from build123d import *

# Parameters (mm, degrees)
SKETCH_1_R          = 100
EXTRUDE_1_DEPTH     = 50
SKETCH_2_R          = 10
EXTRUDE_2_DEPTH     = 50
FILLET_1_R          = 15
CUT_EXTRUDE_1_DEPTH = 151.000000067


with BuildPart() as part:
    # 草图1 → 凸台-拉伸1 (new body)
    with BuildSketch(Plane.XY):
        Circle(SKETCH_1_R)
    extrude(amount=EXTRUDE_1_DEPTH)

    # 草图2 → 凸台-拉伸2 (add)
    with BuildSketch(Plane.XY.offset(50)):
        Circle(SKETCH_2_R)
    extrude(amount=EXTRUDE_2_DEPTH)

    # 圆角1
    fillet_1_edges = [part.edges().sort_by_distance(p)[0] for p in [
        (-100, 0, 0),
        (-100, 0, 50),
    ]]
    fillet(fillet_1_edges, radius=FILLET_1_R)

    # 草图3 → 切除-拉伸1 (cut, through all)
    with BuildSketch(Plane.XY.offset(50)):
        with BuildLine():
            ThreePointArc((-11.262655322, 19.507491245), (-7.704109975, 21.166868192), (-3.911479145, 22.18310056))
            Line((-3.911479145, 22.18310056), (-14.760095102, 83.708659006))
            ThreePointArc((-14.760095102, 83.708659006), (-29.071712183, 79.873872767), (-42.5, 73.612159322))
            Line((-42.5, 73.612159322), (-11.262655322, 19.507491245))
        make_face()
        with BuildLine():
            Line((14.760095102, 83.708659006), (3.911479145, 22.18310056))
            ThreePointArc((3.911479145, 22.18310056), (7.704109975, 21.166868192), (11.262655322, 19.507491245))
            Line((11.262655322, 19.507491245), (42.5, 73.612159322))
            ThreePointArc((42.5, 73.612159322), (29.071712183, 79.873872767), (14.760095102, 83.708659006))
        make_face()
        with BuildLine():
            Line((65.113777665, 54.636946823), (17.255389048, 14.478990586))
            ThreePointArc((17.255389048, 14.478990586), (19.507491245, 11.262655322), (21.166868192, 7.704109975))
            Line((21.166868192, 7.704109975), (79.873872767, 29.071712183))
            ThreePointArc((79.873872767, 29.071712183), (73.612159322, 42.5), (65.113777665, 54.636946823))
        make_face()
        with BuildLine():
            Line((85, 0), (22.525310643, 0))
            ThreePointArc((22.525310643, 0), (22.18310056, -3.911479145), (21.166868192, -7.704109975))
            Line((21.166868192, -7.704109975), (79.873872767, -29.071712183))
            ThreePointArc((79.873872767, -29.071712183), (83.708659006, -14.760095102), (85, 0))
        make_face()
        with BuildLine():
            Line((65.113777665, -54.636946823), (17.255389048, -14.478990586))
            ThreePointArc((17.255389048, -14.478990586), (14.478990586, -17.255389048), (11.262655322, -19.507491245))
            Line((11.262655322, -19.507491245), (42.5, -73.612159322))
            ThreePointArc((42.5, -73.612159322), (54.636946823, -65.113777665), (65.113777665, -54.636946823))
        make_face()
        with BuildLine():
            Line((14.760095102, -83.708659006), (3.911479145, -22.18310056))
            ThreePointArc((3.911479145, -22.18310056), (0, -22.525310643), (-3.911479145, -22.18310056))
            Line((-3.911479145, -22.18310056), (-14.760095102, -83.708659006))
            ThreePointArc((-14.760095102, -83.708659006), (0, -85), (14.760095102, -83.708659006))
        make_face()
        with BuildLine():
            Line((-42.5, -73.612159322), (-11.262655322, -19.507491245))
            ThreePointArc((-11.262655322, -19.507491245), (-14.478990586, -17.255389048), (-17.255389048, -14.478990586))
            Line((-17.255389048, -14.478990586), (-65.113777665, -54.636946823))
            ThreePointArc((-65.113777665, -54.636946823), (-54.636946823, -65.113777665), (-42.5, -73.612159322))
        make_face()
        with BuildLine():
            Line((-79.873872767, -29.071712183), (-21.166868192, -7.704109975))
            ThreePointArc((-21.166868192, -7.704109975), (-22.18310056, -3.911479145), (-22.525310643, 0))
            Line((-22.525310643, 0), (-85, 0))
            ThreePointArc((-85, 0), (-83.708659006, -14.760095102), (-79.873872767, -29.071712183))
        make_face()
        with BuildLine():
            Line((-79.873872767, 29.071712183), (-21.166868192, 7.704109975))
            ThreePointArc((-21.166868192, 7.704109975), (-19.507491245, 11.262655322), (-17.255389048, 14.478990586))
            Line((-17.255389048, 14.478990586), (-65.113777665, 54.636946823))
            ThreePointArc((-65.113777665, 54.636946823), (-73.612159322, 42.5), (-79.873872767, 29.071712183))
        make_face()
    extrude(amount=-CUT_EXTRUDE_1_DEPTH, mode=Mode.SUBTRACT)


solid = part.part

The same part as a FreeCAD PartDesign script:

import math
import FreeCAD as App
import Part
import Sketcher
from FreeCAD import Vector
Q = App.Units.Quantity


def edges_at(feature, points):
    """Names of the edges that pass closest to the given points."""
    edges = feature.Shape.Edges
    near = lambda p: min(range(len(edges)), key=lambda i: edges[i].distToShape(Part.Vertex(*p))[0])
    return sorted({f"Edge{near(p) + 1}" for p in points})

doc = App.newDocument("Part")
body = doc.addObject("PartDesign::Body", "Body")

# Sketch on XY plane
sketch1 = doc.addObject("Sketcher::SketchObject", "Sketch")
body.addObject(sketch1)
sketch1.AttachmentSupport = (doc.XY_Plane, [""])
sketch1.MapMode = "FlatFace"
sketch1.addGeometry(Part.Circle(Vector(0, 0, 0), Vector(0, 0, 1), 100), False)
sketch1.addConstraint(Sketcher.Constraint("Coincident", 0, 3, -1, 1))
sketch1.addConstraint(Sketcher.Constraint("Diameter", 0, 200.0))
pad1 = doc.addObject("PartDesign::Pad", "Pad")
body.addObject(pad1)
pad1.Profile = sketch1
pad1.Length = 50

# Sketch on XY plane
sketch2 = doc.addObject("Sketcher::SketchObject", "Sketch001")
body.addObject(sketch2)
sketch2.AttachmentSupport = (doc.XY_Plane, [""])
sketch2.MapMode = "FlatFace"
sketch2.AttachmentOffset = App.Placement(Vector(0, 0, 50), App.Rotation())
sketch2.addGeometry(Part.Circle(Vector(0, 0, 0), Vector(0, 0, 1), 10), False)
sketch2.addConstraint(Sketcher.Constraint("Coincident", 0, 3, -1, 1))
sketch2.addConstraint(Sketcher.Constraint("Diameter", 0, 20.0))
pad2 = doc.addObject("PartDesign::Pad", "Pad001")
body.addObject(pad2)
pad2.Profile = sketch2
pad2.Length = 50
doc.recompute()

fillet = doc.addObject("PartDesign::Fillet", "Fillet")
body.addObject(fillet)
fillet.Base = (pad2, edges_at(pad2, [(-100, 0, 0), (-100, 0, 50)]))
fillet.Radius = 15

# Sketch on XY plane
sketch3 = doc.addObject("Sketcher::SketchObject", "Sketch002")
body.addObject(sketch3)
sketch3.AttachmentSupport = (doc.XY_Plane, [""])
sketch3.MapMode = "FlatFace"
sketch3.AttachmentOffset = App.Placement(Vector(0, 0, 50), App.Rotation())
sketch3.addGeometry(Part.ArcOfCircle(Part.Circle(Vector(0, 0, 0), Vector(0, 0, 1), 23), math.radians(100), math.radians(120)), False)
sketch3.addGeometry(Part.LineSegment(Vector(-4, 22, 0), Vector(-15, 84, 0)), False)
sketch3.addGeometry(Part.ArcOfCircle(Part.Circle(Vector(0, 0, 0), Vector(0, 0, 1), 85), math.radians(100), math.radians(120)), False)
sketch3.addGeometry(Part.LineSegment(Vector(-42, 74, 0), Vector(-11, 20, 0)), False)
sketch3.addGeometry(Part.LineSegment(Vector(15, 84, 0), Vector(4, 22, 0)), False)
sketch3.addGeometry(Part.ArcOfCircle(Part.Circle(Vector(0, 0, 0), Vector(0, 0, 1), 23), math.radians(60), math.radians(80)), False)
sketch3.addGeometry(Part.LineSegment(Vector(11, 20, 0), Vector(42, 74, 0)), False)
sketch3.addGeometry(Part.ArcOfCircle(Part.Circle(Vector(0, 0, 0), Vector(0, 0, 1), 85), math.radians(60), math.radians(80)), False)
sketch3.addGeometry(Part.LineSegment(Vector(65, 55, 0), Vector(17, 14, 0)), False)
sketch3.addGeometry(Part.ArcOfCircle(Part.Circle(Vector(0, 0, 0), Vector(0, 0, 1), 23), math.radians(20), math.radians(40)), False)
sketch3.addGeometry(Part.LineSegment(Vector(21, 8, 0), Vector(80, 29, 0)), False)
sketch3.addGeometry(Part.ArcOfCircle(Part.Circle(Vector(0, 0, 0), Vector(0, 0, 1), 85), math.radians(20), math.radians(40)), False)
sketch3.addGeometry(Part.LineSegment(Vector(85, 0, 0), Vector(23, 0, 0)), False)
sketch3.addGeometry(Part.ArcOfCircle(Part.Circle(Vector(0, 0, 0), Vector(0, 0, 1), 23), math.radians(-20), math.radians(0)), False)
sketch3.addGeometry(Part.LineSegment(Vector(21, -8, 0), Vector(80, -29, 0)), False)
sketch3.addGeometry(Part.ArcOfCircle(Part.Circle(Vector(0, 0, 0), Vector(0, 0, 1), 85), math.radians(-20), math.radians(0)), False)
sketch3.addGeometry(Part.LineSegment(Vector(65, -55, 0), Vector(17, -14, 0)), False)
sketch3.addGeometry(Part.ArcOfCircle(Part.Circle(Vector(0, 0, 0), Vector(0, 0, 1), 23), math.radians(-60), math.radians(-40)), False)
sketch3.addGeometry(Part.LineSegment(Vector(11, -20, 0), Vector(42, -74, 0)), False)
sketch3.addGeometry(Part.ArcOfCircle(Part.Circle(Vector(0, 0, 0), Vector(0, 0, 1), 85), math.radians(-60), math.radians(-40)), False)
sketch3.addGeometry(Part.LineSegment(Vector(15, -84, 0), Vector(4, -22, 0)), False)
sketch3.addGeometry(Part.ArcOfCircle(Part.Circle(Vector(0, 0, 0), Vector(0, 0, 1), 23), math.radians(-100), math.radians(-80)), False)
sketch3.addGeometry(Part.LineSegment(Vector(-4, -22, 0), Vector(-15, -84, 0)), False)
sketch3.addGeometry(Part.ArcOfCircle(Part.Circle(Vector(0, 0, 0), Vector(0, 0, 1), 85), math.radians(-100), math.radians(-80)), False)
sketch3.addGeometry(Part.LineSegment(Vector(-42, -74, 0), Vector(-11, -20, 0)), False)
sketch3.addGeometry(Part.ArcOfCircle(Part.Circle(Vector(0, 0, 0), Vector(0, 0, 1), 23), math.radians(-140), math.radians(-120)), False)
sketch3.addGeometry(Part.LineSegment(Vector(-17, -14, 0), Vector(-65, -55, 0)), False)
sketch3.addGeometry(Part.ArcOfCircle(Part.Circle(Vector(0, 0, 0), Vector(0, 0, 1), 85), math.radians(-140), math.radians(-120)), False)
sketch3.addGeometry(Part.LineSegment(Vector(-80, -29, 0), Vector(-21, -8, 0)), False)
sketch3.addGeometry(Part.ArcOfCircle(Part.Circle(Vector(0, 0, 0), Vector(0, 0, 1), 23), math.radians(-180), math.radians(-160)), False)
sketch3.addGeometry(Part.LineSegment(Vector(-23, 0, 0), Vector(-85, 0, 0)), False)
sketch3.addGeometry(Part.ArcOfCircle(Part.Circle(Vector(0, 0, 0), Vector(0, 0, 1), 85), math.radians(-180), math.radians(-160)), False)
sketch3.addGeometry(Part.LineSegment(Vector(-80, 29, 0), Vector(-21, 8, 0)), False)
sketch3.addGeometry(Part.ArcOfCircle(Part.Circle(Vector(0, 0, 0), Vector(0, 0, 1), 23), math.radians(140), math.radians(160)), False)
sketch3.addGeometry(Part.LineSegment(Vector(-17, 14, 0), Vector(-65, 55, 0)), False)
sketch3.addGeometry(Part.ArcOfCircle(Part.Circle(Vector(0, 0, 0), Vector(0, 0, 1), 85), math.radians(140), math.radians(160)), False)
sketch3.addConstraint(Sketcher.Constraint("Coincident", 0, 1, 1, 1))
sketch3.addConstraint(Sketcher.Constraint("Coincident", 1, 2, 2, 1))
sketch3.addConstraint(Sketcher.Constraint("Coincident", 2, 2, 3, 1))
sketch3.addConstraint(Sketcher.Constraint("Coincident", 3, 2, 0, 2))
sketch3.addConstraint(Sketcher.Constraint("Coincident", 4, 2, 5, 2))
sketch3.addConstraint(Sketcher.Constraint("Coincident", 5, 1, 6, 1))
sketch3.addConstraint(Sketcher.Constraint("Coincident", 6, 2, 7, 1))
sketch3.addConstraint(Sketcher.Constraint("Coincident", 7, 2, 4, 1))
sketch3.addConstraint(Sketcher.Constraint("Coincident", 8, 2, 9, 2))
sketch3.addConstraint(Sketcher.Constraint("Coincident", 9, 1, 10, 1))
sketch3.addConstraint(Sketcher.Constraint("Coincident", 10, 2, 11, 1))
sketch3.addConstraint(Sketcher.Constraint("Coincident", 11, 2, 8, 1))
sketch3.addConstraint(Sketcher.Constraint("Coincident", 12, 2, 13, 2))
sketch3.addConstraint(Sketcher.Constraint("Coincident", 13, 1, 14, 1))
sketch3.addConstraint(Sketcher.Constraint("Coincident", 14, 2, 15, 1))
sketch3.addConstraint(Sketcher.Constraint("Coincident", 15, 2, 12, 1))
sketch3.addConstraint(Sketcher.Constraint("Coincident", 16, 2, 17, 2))
sketch3.addConstraint(Sketcher.Constraint("Coincident", 17, 1, 18, 1))
sketch3.addConstraint(Sketcher.Constraint("Coincident", 18, 2, 19, 1))
sketch3.addConstraint(Sketcher.Constraint("Coincident", 19, 2, 16, 1))
sketch3.addConstraint(Sketcher.Constraint("Coincident", 20, 2, 21, 2))
sketch3.addConstraint(Sketcher.Constraint("Coincident", 21, 1, 22, 1))
sketch3.addConstraint(Sketcher.Constraint("Coincident", 22, 2, 23, 1))
sketch3.addConstraint(Sketcher.Constraint("Coincident", 23, 2, 20, 1))
sketch3.addConstraint(Sketcher.Constraint("Coincident", 24, 2, 25, 2))
sketch3.addConstraint(Sketcher.Constraint("Coincident", 25, 1, 26, 1))
sketch3.addConstraint(Sketcher.Constraint("Coincident", 26, 2, 27, 1))
sketch3.addConstraint(Sketcher.Constraint("Coincident", 27, 2, 24, 1))
sketch3.addConstraint(Sketcher.Constraint("Coincident", 28, 2, 29, 2))
sketch3.addConstraint(Sketcher.Constraint("Coincident", 29, 1, 30, 1))
sketch3.addConstraint(Sketcher.Constraint("Coincident", 30, 2, 31, 1))
sketch3.addConstraint(Sketcher.Constraint("Coincident", 31, 2, 28, 1))
sketch3.addConstraint(Sketcher.Constraint("Coincident", 32, 2, 33, 2))
sketch3.addConstraint(Sketcher.Constraint("Coincident", 33, 1, 34, 1))
sketch3.addConstraint(Sketcher.Constraint("Coincident", 34, 2, 35, 1))
sketch3.addConstraint(Sketcher.Constraint("Coincident", 35, 2, 32, 1))
sketch3.addConstraint(Sketcher.Constraint("Horizontal", 12))
sketch3.addConstraint(Sketcher.Constraint("Horizontal", 30))
sketch3.addConstraint(Sketcher.Constraint("Coincident", 0, 3, -1, 1))
sketch3.addConstraint(Sketcher.Constraint("Coincident", 2, 3, -1, 1))
sketch3.addConstraint(Sketcher.Constraint("Coincident", 5, 3, -1, 1))
sketch3.addConstraint(Sketcher.Constraint("Coincident", 7, 3, -1, 1))
sketch3.addConstraint(Sketcher.Constraint("Coincident", 9, 3, -1, 1))
sketch3.addConstraint(Sketcher.Constraint("Coincident", 11, 3, -1, 1))
sketch3.addConstraint(Sketcher.Constraint("Coincident", 13, 3, -1, 1))
sketch3.addConstraint(Sketcher.Constraint("Coincident", 15, 3, -1, 1))
sketch3.addConstraint(Sketcher.Constraint("Coincident", 17, 3, -1, 1))
sketch3.addConstraint(Sketcher.Constraint("Coincident", 19, 3, -1, 1))
sketch3.addConstraint(Sketcher.Constraint("Coincident", 21, 3, -1, 1))
sketch3.addConstraint(Sketcher.Constraint("Coincident", 23, 3, -1, 1))
sketch3.addConstraint(Sketcher.Constraint("Coincident", 25, 3, -1, 1))
sketch3.addConstraint(Sketcher.Constraint("Coincident", 27, 3, -1, 1))
sketch3.addConstraint(Sketcher.Constraint("Coincident", 29, 3, -1, 1))
sketch3.addConstraint(Sketcher.Constraint("Coincident", 31, 3, -1, 1))
sketch3.addConstraint(Sketcher.Constraint("Coincident", 33, 3, -1, 1))
sketch3.addConstraint(Sketcher.Constraint("Coincident", 35, 3, -1, 1))
sketch3.addConstraint(Sketcher.Constraint("Equal", 0, 5))
sketch3.addConstraint(Sketcher.Constraint("Equal", 2, 7))
sketch3.addConstraint(Sketcher.Constraint("Equal", 5, 9))
sketch3.addConstraint(Sketcher.Constraint("Equal", 7, 11))
sketch3.addConstraint(Sketcher.Constraint("Equal", 9, 13))
sketch3.addConstraint(Sketcher.Constraint("Equal", 11, 15))
sketch3.addConstraint(Sketcher.Constraint("Equal", 13, 17))
sketch3.addConstraint(Sketcher.Constraint("Equal", 15, 19))
sketch3.addConstraint(Sketcher.Constraint("Equal", 17, 21))
sketch3.addConstraint(Sketcher.Constraint("Equal", 19, 23))
sketch3.addConstraint(Sketcher.Constraint("Equal", 21, 25))
sketch3.addConstraint(Sketcher.Constraint("Equal", 23, 27))
sketch3.addConstraint(Sketcher.Constraint("Equal", 25, 29))
sketch3.addConstraint(Sketcher.Constraint("Equal", 27, 31))
sketch3.addConstraint(Sketcher.Constraint("Equal", 29, 33))
sketch3.addConstraint(Sketcher.Constraint("Equal", 31, 35))
sketch3.addConstraint(Sketcher.Constraint("PointOnObject", 12, 2, -1))
sketch3.addConstraint(Sketcher.Constraint("PointOnObject", 29, 1, -1))
sketch3.addConstraint(Sketcher.Constraint("Parallel", 3, 18))
sketch3.addConstraint(Sketcher.Constraint("Parallel", 1, 20))
sketch3.addConstraint(Sketcher.Constraint("Parallel", 4, 22))
sketch3.addConstraint(Sketcher.Constraint("Parallel", 6, 24))
sketch3.addConstraint(Sketcher.Constraint("Parallel", 8, 26))
sketch3.addConstraint(Sketcher.Constraint("Parallel", 10, 28))
sketch3.addConstraint(Sketcher.Constraint("Parallel", 14, 32))
sketch3.addConstraint(Sketcher.Constraint("Parallel", 16, 34))
sketch3.addConstraint(Sketcher.Constraint("Horizontal", 0, 1, 4, 2))
sketch3.addConstraint(Sketcher.Constraint("Horizontal", 3, 2, 5, 1))
sketch3.addConstraint(Sketcher.Constraint("Horizontal", 2, 2, 6, 2))
sketch3.addConstraint(Sketcher.Constraint("Horizontal", 1, 2, 7, 2))
sketch3.addConstraint(Sketcher.Constraint("Horizontal", 20, 2, 21, 1))
sketch3.addConstraint(Sketcher.Constraint("Horizontal", 17, 1, 24, 2))
sketch3.addConstraint(Sketcher.Constraint("Horizontal", 16, 2, 25, 1))
sketch3.addConstraint(Sketcher.Constraint("Horizontal", 19, 2, 26, 2))
sketch3.addConstraint(Sketcher.Constraint("Horizontal", 13, 1, 28, 2))
sketch3.addConstraint(Sketcher.Constraint("Horizontal", 14, 2, 31, 2))
sketch3.addConstraint(Sketcher.Constraint("Horizontal", 9, 1, 32, 2))
sketch3.addConstraint(Sketcher.Constraint("Horizontal", 8, 2, 33, 1))
sketch3.addConstraint(Sketcher.Constraint("Vertical", 9, 1, 13, 1))
sketch3.addConstraint(Sketcher.Constraint("Vertical", 8, 2, 16, 2))
sketch3.addConstraint(Sketcher.Constraint("Vertical", 5, 1, 17, 1))
sketch3.addConstraint(Sketcher.Constraint("Vertical", 4, 2, 20, 2))
sketch3.addConstraint(Sketcher.Constraint("Radius", 2, 85.0))
sketch3.addConstraint(Sketcher.Constraint("Angle", 1, Q("100 deg")))
sketch3.addConstraint(Sketcher.Constraint("Angle", 3, Q("-60 deg")))
sketch3.addConstraint(Sketcher.Constraint("Angle", 8, Q("-140 deg")))
sketch3.addConstraint(Sketcher.Constraint("Angle", 10, Q("20 deg")))
sketch3.addConstraint(Sketcher.Constraint("DistanceX", 2, 2, -1, 1, 42.5))
sketch3.addConstraint(Sketcher.Constraint("Radius", 0, 22.525311))
sketch3.addConstraint(Sketcher.Constraint("DistanceY", -1, 1, 0, 1, 22.183101))
sketch3.addConstraint(Sketcher.Constraint("DistanceY", 8, 2, 5, 1, 5.028501))
sketch3.addConstraint(Sketcher.Constraint("DistanceX", -1, 1, 9, 1, 21.166868))
pocket1 = doc.addObject("PartDesign::Pocket", "Pocket")
body.addObject(pocket1)
pocket1.Profile = sketch3
pocket1.Type = "ThroughAll"

doc.recompute()
